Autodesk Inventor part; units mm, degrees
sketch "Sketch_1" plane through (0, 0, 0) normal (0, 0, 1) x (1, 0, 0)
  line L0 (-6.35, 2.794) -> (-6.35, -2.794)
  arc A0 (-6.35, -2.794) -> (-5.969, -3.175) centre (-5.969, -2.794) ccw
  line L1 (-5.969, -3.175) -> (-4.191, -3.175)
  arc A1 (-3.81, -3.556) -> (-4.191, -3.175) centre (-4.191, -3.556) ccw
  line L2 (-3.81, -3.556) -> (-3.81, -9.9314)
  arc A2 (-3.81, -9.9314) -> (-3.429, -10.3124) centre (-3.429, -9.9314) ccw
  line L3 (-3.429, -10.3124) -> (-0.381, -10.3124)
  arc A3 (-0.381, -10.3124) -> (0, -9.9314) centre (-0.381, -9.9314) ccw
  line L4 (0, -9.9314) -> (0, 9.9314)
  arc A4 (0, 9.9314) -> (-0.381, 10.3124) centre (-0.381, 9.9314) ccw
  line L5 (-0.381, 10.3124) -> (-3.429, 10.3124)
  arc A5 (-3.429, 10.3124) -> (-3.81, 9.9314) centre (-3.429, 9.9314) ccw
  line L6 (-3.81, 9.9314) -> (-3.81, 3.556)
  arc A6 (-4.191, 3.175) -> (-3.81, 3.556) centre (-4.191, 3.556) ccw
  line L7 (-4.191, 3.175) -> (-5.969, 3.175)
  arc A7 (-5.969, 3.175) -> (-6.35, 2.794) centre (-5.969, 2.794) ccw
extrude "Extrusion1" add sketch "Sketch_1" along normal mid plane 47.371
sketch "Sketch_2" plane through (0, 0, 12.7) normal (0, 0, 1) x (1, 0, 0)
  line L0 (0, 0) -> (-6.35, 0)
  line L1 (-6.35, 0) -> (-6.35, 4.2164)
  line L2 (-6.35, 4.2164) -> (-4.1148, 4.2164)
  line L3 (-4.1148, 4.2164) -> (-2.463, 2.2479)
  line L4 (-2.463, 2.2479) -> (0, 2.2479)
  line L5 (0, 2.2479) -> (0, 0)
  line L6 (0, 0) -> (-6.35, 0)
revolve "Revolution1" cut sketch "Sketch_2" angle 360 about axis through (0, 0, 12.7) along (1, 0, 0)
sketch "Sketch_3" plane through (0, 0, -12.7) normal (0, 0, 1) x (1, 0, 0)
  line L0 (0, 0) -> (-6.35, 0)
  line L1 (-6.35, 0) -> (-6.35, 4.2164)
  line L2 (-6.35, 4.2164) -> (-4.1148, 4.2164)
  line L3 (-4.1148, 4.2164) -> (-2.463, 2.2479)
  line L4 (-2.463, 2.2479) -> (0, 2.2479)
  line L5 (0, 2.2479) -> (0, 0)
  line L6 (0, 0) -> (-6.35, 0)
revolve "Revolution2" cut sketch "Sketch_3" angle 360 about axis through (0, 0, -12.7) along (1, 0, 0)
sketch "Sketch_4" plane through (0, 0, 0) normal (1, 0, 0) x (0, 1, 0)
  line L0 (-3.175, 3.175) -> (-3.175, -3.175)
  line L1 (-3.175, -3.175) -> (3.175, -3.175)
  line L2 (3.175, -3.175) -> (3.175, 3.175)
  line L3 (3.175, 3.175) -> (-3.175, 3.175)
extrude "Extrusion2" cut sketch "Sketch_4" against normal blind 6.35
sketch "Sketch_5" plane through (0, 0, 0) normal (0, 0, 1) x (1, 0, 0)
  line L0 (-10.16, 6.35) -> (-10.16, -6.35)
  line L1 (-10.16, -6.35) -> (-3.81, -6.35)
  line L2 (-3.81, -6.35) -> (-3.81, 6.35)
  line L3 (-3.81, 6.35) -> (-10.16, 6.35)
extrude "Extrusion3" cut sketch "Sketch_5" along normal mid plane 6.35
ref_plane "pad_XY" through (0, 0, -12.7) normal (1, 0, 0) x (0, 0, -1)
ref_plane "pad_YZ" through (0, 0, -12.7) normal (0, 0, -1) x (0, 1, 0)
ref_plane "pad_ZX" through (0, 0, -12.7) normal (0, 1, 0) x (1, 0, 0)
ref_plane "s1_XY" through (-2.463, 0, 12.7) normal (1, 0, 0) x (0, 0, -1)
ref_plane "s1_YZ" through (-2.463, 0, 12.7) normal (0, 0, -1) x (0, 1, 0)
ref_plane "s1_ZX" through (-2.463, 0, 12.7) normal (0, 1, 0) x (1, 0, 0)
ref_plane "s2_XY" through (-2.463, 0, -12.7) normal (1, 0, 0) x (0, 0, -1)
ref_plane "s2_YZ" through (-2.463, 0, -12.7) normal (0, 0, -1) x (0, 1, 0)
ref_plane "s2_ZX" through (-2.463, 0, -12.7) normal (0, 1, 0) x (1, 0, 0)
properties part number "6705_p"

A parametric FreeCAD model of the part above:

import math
import FreeCAD as App
import Part
import Sketcher
from FreeCAD import Vector
Q = App.Units.Quantity


def add_polygon(sketch, points):
    """Adds a closed chain of lines whose ends are joined by coincident constraints."""
    first, n = sketch.GeometryCount, len(points)
    for a, b in zip(points, points[1:] + points[:1]):
        sketch.addGeometry(Part.LineSegment(App.Vector(*a, 0), App.Vector(*b, 0)), False)
    for i in range(n):
        sketch.addConstraint(Sketcher.Constraint("Coincident", first + i, 2, first + (i + 1) % n, 1))

doc = App.newDocument("Part")
body = doc.addObject("PartDesign::Body", "Body")

# Sketch on XY plane
sketch1 = doc.addObject("Sketcher::SketchObject", "Sketch")
body.addObject(sketch1)
sketch1.AttachmentSupport = (doc.XY_Plane, [""])
sketch1.MapMode = "FlatFace"
sketch1.addGeometry([
    Part.ArcOfCircle(Part.Circle(Vector(-5.97, 2.79, 0), Vector(0, 0, 1), 0.38), math.radians(90), math.radians(180)),  # 0
    Part.LineSegment(Vector(-6.35, 2.79, 0), Vector(-6.35, -2.79, 0)),  # 1
    Part.ArcOfCircle(Part.Circle(Vector(-5.97, -2.79, 0), Vector(0, 0, 1), 0.38), math.radians(180), math.radians(270)),  # 2
    Part.LineSegment(Vector(-5.97, -3.17, 0), Vector(-4.19, -3.17, 0)),  # 3
    Part.ArcOfCircle(Part.Circle(Vector(-4.19, -3.56, 0), Vector(0, 0, 1), 0.38), math.radians(0), math.radians(90)),  # 4
    Part.LineSegment(Vector(-3.81, -3.56, 0), Vector(-3.81, -9.93, 0)),  # 5
    Part.ArcOfCircle(Part.Circle(Vector(-3.43, -9.93, 0), Vector(0, 0, 1), 0.38), math.radians(180), math.radians(270)),  # 6
    Part.LineSegment(Vector(-3.43, -10.31, 0), Vector(-0.38, -10.31, 0)),  # 7
    Part.ArcOfCircle(Part.Circle(Vector(-0.38, -9.93, 0), Vector(0, 0, 1), 0.38), math.radians(-90), math.radians(0)),  # 8
    Part.LineSegment(Vector(0, -9.93, 0), Vector(0, 9.93, 0)),  # 9
    Part.ArcOfCircle(Part.Circle(Vector(-0.38, 9.93, 0), Vector(0, 0, 1), 0.38), math.radians(0), math.radians(90)),  # 10
    Part.LineSegment(Vector(-0.38, 10.31, 0), Vector(-3.43, 10.31, 0)),  # 11
    Part.ArcOfCircle(Part.Circle(Vector(-3.43, 9.93, 0), Vector(0, 0, 1), 0.38), math.radians(90), math.radians(180)),  # 12
    Part.LineSegment(Vector(-3.81, 9.93, 0), Vector(-3.81, 3.56, 0)),  # 13
    Part.ArcOfCircle(Part.Circle(Vector(-4.19, 3.56, 0), Vector(0, 0, 1), 0.38), math.radians(-90), math.radians(0)),  # 14
    Part.LineSegment(Vector(-4.19, 3.17, 0), Vector(-5.97, 3.17, 0)),  # 15
], False)
sketch1.addConstraint([
    Sketcher.Constraint("Tangent", 0, 2, 1, 1),
    Sketcher.Constraint("Tangent", 1, 2, 2, 1),
    Sketcher.Constraint("Tangent", 2, 2, 3, 1),
    Sketcher.Constraint("Tangent", 3, 2, 4, 2),
    Sketcher.Constraint("Tangent", 4, 1, 5, 1),
    Sketcher.Constraint("Tangent", 5, 2, 6, 1),
    Sketcher.Constraint("Tangent", 6, 2, 7, 1),
    Sketcher.Constraint("Tangent", 7, 2, 8, 1),
    Sketcher.Constraint("Tangent", 8, 2, 9, 1),
    Sketcher.Constraint("Tangent", 9, 2, 10, 1),
    Sketcher.Constraint("Tangent", 10, 2, 11, 1),
    Sketcher.Constraint("Tangent", 11, 2, 12, 1),
    Sketcher.Constraint("Tangent", 12, 2, 13, 1),
    Sketcher.Constraint("Tangent", 13, 2, 14, 2),
    Sketcher.Constraint("Tangent", 14, 1, 15, 1),
    Sketcher.Constraint("Tangent", 15, 2, 0, 1),
    Sketcher.Constraint("Vertical", 1),
    Sketcher.Constraint("Horizontal", 3),
    Sketcher.Constraint("Vertical", 5),
    Sketcher.Constraint("Horizontal", 7),
    Sketcher.Constraint("Vertical", 9),
    Sketcher.Constraint("Horizontal", 11),
    Sketcher.Constraint("Vertical", 13),
    Sketcher.Constraint("Horizontal", 15),
    Sketcher.Constraint("Equal", 0, 2),
    Sketcher.Constraint("Equal", 2, 4),
    Sketcher.Constraint("Equal", 4, 6),
    Sketcher.Constraint("Equal", 6, 8),
    Sketcher.Constraint("Equal", 8, 10),
    Sketcher.Constraint("Equal", 10, 12),
    Sketcher.Constraint("Equal", 12, 14),
    Sketcher.Constraint("Symmetric", 8, 2, 9, 2, -1, 1),
    Sketcher.Constraint("Symmetric", 4, 3, 14, 3, -1),
    Sketcher.Constraint("Radius", 0, Q("0.015 in")),
    Sketcher.Constraint("DistanceX", 3, 1, 3, 2, Q("0.07 in")),
    Sketcher.Constraint("DistanceX", 7, 1, 7, 2, Q("0.12 in")),
    Sketcher.Constraint("DistanceY", 1, 2, 1, 1, Q("0.22 in")),
    Sketcher.Constraint("DistanceY", 5, 2, 5, 1, Q("0.251 in")),
])
pad1 = doc.addObject("PartDesign::Pad", "Pad")
body.addObject(pad1)
pad1.Profile = sketch1
pad1.Length = Q("1.865 in")
pad1.Midplane = True

# Sketch on XY plane
sketch2 = doc.addObject("Sketcher::SketchObject", "Sketch001")
body.addObject(sketch2)
sketch2.AttachmentSupport = (doc.XY_Plane, [""])
sketch2.MapMode = "FlatFace"
sketch2.AttachmentOffset = App.Placement(Vector(0, 0, 0.5 * 25.4), App.Rotation())
add_polygon(sketch2, [(-6.3, 0), (0, 0), (0, 2.2), (-2.5, 2.2), (-4.1, 4.2), (-6.3, 4.2)])  # lines 0-5
sketch2.addConstraint([
    Sketcher.Constraint("Horizontal", 0),
    Sketcher.Constraint("Vertical", 1),
    Sketcher.Constraint("Horizontal", 2),
    Sketcher.Constraint("Horizontal", 4),
    Sketcher.Constraint("Vertical", 5),
    Sketcher.Constraint("Coincident", 0, 2, -1, 1),
    Sketcher.Constraint("Angle", 3, Q("130.0006 deg")),
    Sketcher.Constraint("DistanceX", 0, 1, 0, 2, Q("0.25 in")),
    Sketcher.Constraint("DistanceX", 4, 2, 4, 1, Q("0.088 in")),
    Sketcher.Constraint("DistanceY", 5, 2, 5, 1, Q("0.166 in")),
    Sketcher.Constraint("DistanceY", 1, 1, 1, 2, Q("0.0885 in")),
])
groove = doc.addObject("PartDesign::Groove", "Groove")
body.addObject(groove)
groove.Profile = sketch2
groove.ReferenceAxis = (sketch2, ["H_Axis"])
groove.Angle = 360

# Sketch on XY plane
sketch3 = doc.addObject("Sketcher::SketchObject", "Sketch002")
body.addObject(sketch3)
sketch3.AttachmentSupport = (doc.XY_Plane, [""])
sketch3.MapMode = "FlatFace"
sketch3.AttachmentOffset = App.Placement(Vector(0, 0, -0.5 * 25.4), App.Rotation())
add_polygon(sketch3, [(-6.3, 0), (0, 0), (0, 2.2), (-2.5, 2.2), (-4.1, 4.2), (-6.3, 4.2)])  # lines 0-5
sketch3.addConstraint([
    Sketcher.Constraint("Horizontal", 0),
    Sketcher.Constraint("Vertical", 1),
    Sketcher.Constraint("Horizontal", 2),
    Sketcher.Constraint("Horizontal", 4),
    Sketcher.Constraint("Vertical", 5),
    Sketcher.Constraint("Coincident", 0, 2, -1, 1),
    Sketcher.Constraint("Angle", 3, Q("130.0006 deg")),
    Sketcher.Constraint("DistanceX", 0, 1, 0, 2, Q("0.25 in")),
    Sketcher.Constraint("DistanceX", 4, 2, 4, 1, Q("0.088 in")),
    Sketcher.Constraint("DistanceY", 5, 2, 5, 1, Q("0.166 in")),
    Sketcher.Constraint("DistanceY", 1, 1, 1, 2, Q("0.0885 in")),
])
groove2 = doc.addObject("PartDesign::Groove", "Groove001")
body.addObject(groove2)
groove2.Profile = sketch3
groove2.ReferenceAxis = (sketch3, ["H_Axis"])
groove2.Angle = 360

# Sketch on YZ plane
sketch4 = doc.addObject("Sketcher::SketchObject", "Sketch003")
body.addObject(sketch4)
sketch4.AttachmentSupport = (doc.YZ_Plane, [""])
sketch4.MapMode = "FlatFace"
add_polygon(sketch4, [(3, 3), (-3, 3), (-3, -3), (3, -3)])  # lines 0-3
sketch4.addConstraint([
    Sketcher.Constraint("Horizontal", 0),
    Sketcher.Constraint("Vertical", 1),
    Sketcher.Constraint("Horizontal", 2),
    Sketcher.Constraint("Vertical", 3),
    Sketcher.Constraint("Symmetric", 0, 2, 2, 2, -1, 1),
    Sketcher.Constraint("Equal", 2, 1),
    Sketcher.Constraint("DistanceX", 0, 2, 0, 1, Q("0.25 in")),
])
pocket1 = doc.addObject("PartDesign::Pocket", "Pocket")
body.addObject(pocket1)
pocket1.Profile = sketch4
pocket1.Length = Q("0.25 in")

# Sketch on XY plane
sketch5 = doc.addObject("Sketcher::SketchObject", "Sketch004")
body.addObject(sketch5)
sketch5.AttachmentSupport = (doc.XY_Plane, [""])
sketch5.MapMode = "FlatFace"
add_polygon(sketch5, [(-4, 6), (-10, 6), (-10, -6), (-4, -6)])  # lines 0-3
sketch5.addConstraint([
    Sketcher.Constraint("Horizontal", 0),
    Sketcher.Constraint("Vertical", 1),
    Sketcher.Constraint("Horizontal", 2),
    Sketcher.Constraint("Vertical", 3),
    Sketcher.Constraint("DistanceY", 1, 2, 1, 1, Q("0.5 in")),
    Sketcher.Constraint("DistanceX", 0, 2, 0, 1, Q("0.25 in")),
    Sketcher.Constraint("DistanceX", 0, 2, -1, 1, Q("0.4 in")),
    Sketcher.Constraint("DistanceY", -1, 1, 0, 2, Q("0.25 in")),
])
pocket2 = doc.addObject("PartDesign::Pocket", "Pocket001")
body.addObject(pocket2)
pocket2.Profile = sketch5
pocket2.Length = Q("0.25 in")
pocket2.Midplane = True

doc.recompute()
